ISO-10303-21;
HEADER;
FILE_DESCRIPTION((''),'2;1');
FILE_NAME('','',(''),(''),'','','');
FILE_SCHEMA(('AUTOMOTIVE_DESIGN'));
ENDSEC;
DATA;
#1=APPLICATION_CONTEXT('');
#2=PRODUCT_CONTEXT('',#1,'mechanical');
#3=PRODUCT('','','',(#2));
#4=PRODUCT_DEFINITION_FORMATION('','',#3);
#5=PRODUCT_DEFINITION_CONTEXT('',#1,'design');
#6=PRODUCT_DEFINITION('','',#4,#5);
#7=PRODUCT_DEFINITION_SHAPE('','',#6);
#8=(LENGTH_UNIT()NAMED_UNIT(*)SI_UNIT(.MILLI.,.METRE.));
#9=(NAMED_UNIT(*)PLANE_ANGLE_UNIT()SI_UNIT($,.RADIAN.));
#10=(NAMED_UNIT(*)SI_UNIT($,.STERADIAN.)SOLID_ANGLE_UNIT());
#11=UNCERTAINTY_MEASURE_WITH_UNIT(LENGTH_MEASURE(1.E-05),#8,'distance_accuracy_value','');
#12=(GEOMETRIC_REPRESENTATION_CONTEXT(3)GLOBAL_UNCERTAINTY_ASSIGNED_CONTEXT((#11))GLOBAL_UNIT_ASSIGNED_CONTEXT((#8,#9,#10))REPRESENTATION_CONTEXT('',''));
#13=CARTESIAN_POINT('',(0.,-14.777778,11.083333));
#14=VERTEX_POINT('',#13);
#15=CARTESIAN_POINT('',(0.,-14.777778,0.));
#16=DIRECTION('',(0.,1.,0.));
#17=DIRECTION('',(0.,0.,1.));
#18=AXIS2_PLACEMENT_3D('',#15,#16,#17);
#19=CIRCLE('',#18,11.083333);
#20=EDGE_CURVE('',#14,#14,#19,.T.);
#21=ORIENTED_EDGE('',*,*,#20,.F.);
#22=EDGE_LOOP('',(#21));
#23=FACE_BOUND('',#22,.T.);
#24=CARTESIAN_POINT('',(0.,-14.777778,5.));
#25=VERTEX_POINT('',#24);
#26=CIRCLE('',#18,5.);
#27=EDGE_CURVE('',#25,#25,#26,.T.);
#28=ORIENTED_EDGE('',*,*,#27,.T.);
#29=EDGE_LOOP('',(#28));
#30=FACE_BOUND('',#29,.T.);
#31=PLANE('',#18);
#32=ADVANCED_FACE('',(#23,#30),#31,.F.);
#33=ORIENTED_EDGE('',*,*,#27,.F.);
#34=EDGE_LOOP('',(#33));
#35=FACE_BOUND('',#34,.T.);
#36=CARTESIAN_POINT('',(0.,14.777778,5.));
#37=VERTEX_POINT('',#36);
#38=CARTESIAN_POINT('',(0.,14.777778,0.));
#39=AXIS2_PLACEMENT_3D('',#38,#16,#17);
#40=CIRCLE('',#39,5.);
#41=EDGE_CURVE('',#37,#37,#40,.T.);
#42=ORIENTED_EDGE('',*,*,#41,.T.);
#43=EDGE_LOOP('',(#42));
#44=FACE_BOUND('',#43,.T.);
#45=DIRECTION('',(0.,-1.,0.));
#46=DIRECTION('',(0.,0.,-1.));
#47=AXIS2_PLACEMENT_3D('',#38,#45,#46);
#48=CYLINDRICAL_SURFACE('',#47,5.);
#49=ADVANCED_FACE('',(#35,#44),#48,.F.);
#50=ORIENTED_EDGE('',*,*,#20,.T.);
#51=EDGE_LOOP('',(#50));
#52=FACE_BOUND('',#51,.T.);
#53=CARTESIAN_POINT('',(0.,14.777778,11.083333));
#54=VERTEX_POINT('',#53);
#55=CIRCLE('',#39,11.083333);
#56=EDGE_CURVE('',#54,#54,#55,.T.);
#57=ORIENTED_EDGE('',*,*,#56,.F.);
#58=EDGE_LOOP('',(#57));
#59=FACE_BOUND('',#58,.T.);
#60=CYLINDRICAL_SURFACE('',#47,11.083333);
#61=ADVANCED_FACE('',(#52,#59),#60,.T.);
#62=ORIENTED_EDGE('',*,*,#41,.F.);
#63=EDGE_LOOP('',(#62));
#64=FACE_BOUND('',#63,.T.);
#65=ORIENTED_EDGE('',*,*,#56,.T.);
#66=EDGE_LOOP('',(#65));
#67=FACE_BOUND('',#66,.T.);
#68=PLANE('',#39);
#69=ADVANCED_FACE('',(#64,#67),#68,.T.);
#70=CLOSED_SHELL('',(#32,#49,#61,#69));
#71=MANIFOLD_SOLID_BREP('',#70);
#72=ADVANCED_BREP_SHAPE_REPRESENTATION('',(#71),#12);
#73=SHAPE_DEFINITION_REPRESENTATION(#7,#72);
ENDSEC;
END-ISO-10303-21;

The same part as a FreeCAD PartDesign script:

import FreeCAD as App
import Part
import Sketcher

V = App.Vector
Q = App.Units.Quantity

doc = App.newDocument("Part")
params = doc.addObject("Spreadsheet::Sheet", "Params")
for row, (alias, value) in enumerate([
    ("sketch1_diameter", "10 mm"),
    ("pad1_length", "29.555556 mm"),
], start=1):
    params.set(f"A{row}", alias)
    params.set(f"B{row}", "=" + value)
    params.setAlias(f"B{row}", alias)

body = doc.addObject("PartDesign::Body", "Body")

sketch1 = body.newObject("Sketcher::SketchObject", "Sketch")
sketch1.AttachmentSupport = (doc.getObject("XZ_Plane"), [""])
sketch1.MapMode = "FlatFace"
sketch1.addGeometry([
    Part.Circle(V(0, 0, 0), V(0, 0, 1), 11.083333),
    Part.Circle(V(0, 0, 0), V(0, 0, 1), 5),
], False)
sketch1.addConstraint([
    Sketcher.Constraint("Coincident", 0, 3, -1, 1),
    Sketcher.Constraint("Coincident", 1, 3, -1, 1),
    Sketcher.Constraint("Diameter", 1, Q("10 mm")),
    Sketcher.Constraint("Diameter", 0, Q("22.166667 mm")),
])
sketch1.setExpression("Constraints[2]", "Params.sketch1_diameter")
pad1 = body.newObject("PartDesign::Pad", "Pad")
pad1.Profile = sketch1
pad1.setExpression("Length", "Params.pad1_length")
pad1.Midplane = True

doc.recompute()
